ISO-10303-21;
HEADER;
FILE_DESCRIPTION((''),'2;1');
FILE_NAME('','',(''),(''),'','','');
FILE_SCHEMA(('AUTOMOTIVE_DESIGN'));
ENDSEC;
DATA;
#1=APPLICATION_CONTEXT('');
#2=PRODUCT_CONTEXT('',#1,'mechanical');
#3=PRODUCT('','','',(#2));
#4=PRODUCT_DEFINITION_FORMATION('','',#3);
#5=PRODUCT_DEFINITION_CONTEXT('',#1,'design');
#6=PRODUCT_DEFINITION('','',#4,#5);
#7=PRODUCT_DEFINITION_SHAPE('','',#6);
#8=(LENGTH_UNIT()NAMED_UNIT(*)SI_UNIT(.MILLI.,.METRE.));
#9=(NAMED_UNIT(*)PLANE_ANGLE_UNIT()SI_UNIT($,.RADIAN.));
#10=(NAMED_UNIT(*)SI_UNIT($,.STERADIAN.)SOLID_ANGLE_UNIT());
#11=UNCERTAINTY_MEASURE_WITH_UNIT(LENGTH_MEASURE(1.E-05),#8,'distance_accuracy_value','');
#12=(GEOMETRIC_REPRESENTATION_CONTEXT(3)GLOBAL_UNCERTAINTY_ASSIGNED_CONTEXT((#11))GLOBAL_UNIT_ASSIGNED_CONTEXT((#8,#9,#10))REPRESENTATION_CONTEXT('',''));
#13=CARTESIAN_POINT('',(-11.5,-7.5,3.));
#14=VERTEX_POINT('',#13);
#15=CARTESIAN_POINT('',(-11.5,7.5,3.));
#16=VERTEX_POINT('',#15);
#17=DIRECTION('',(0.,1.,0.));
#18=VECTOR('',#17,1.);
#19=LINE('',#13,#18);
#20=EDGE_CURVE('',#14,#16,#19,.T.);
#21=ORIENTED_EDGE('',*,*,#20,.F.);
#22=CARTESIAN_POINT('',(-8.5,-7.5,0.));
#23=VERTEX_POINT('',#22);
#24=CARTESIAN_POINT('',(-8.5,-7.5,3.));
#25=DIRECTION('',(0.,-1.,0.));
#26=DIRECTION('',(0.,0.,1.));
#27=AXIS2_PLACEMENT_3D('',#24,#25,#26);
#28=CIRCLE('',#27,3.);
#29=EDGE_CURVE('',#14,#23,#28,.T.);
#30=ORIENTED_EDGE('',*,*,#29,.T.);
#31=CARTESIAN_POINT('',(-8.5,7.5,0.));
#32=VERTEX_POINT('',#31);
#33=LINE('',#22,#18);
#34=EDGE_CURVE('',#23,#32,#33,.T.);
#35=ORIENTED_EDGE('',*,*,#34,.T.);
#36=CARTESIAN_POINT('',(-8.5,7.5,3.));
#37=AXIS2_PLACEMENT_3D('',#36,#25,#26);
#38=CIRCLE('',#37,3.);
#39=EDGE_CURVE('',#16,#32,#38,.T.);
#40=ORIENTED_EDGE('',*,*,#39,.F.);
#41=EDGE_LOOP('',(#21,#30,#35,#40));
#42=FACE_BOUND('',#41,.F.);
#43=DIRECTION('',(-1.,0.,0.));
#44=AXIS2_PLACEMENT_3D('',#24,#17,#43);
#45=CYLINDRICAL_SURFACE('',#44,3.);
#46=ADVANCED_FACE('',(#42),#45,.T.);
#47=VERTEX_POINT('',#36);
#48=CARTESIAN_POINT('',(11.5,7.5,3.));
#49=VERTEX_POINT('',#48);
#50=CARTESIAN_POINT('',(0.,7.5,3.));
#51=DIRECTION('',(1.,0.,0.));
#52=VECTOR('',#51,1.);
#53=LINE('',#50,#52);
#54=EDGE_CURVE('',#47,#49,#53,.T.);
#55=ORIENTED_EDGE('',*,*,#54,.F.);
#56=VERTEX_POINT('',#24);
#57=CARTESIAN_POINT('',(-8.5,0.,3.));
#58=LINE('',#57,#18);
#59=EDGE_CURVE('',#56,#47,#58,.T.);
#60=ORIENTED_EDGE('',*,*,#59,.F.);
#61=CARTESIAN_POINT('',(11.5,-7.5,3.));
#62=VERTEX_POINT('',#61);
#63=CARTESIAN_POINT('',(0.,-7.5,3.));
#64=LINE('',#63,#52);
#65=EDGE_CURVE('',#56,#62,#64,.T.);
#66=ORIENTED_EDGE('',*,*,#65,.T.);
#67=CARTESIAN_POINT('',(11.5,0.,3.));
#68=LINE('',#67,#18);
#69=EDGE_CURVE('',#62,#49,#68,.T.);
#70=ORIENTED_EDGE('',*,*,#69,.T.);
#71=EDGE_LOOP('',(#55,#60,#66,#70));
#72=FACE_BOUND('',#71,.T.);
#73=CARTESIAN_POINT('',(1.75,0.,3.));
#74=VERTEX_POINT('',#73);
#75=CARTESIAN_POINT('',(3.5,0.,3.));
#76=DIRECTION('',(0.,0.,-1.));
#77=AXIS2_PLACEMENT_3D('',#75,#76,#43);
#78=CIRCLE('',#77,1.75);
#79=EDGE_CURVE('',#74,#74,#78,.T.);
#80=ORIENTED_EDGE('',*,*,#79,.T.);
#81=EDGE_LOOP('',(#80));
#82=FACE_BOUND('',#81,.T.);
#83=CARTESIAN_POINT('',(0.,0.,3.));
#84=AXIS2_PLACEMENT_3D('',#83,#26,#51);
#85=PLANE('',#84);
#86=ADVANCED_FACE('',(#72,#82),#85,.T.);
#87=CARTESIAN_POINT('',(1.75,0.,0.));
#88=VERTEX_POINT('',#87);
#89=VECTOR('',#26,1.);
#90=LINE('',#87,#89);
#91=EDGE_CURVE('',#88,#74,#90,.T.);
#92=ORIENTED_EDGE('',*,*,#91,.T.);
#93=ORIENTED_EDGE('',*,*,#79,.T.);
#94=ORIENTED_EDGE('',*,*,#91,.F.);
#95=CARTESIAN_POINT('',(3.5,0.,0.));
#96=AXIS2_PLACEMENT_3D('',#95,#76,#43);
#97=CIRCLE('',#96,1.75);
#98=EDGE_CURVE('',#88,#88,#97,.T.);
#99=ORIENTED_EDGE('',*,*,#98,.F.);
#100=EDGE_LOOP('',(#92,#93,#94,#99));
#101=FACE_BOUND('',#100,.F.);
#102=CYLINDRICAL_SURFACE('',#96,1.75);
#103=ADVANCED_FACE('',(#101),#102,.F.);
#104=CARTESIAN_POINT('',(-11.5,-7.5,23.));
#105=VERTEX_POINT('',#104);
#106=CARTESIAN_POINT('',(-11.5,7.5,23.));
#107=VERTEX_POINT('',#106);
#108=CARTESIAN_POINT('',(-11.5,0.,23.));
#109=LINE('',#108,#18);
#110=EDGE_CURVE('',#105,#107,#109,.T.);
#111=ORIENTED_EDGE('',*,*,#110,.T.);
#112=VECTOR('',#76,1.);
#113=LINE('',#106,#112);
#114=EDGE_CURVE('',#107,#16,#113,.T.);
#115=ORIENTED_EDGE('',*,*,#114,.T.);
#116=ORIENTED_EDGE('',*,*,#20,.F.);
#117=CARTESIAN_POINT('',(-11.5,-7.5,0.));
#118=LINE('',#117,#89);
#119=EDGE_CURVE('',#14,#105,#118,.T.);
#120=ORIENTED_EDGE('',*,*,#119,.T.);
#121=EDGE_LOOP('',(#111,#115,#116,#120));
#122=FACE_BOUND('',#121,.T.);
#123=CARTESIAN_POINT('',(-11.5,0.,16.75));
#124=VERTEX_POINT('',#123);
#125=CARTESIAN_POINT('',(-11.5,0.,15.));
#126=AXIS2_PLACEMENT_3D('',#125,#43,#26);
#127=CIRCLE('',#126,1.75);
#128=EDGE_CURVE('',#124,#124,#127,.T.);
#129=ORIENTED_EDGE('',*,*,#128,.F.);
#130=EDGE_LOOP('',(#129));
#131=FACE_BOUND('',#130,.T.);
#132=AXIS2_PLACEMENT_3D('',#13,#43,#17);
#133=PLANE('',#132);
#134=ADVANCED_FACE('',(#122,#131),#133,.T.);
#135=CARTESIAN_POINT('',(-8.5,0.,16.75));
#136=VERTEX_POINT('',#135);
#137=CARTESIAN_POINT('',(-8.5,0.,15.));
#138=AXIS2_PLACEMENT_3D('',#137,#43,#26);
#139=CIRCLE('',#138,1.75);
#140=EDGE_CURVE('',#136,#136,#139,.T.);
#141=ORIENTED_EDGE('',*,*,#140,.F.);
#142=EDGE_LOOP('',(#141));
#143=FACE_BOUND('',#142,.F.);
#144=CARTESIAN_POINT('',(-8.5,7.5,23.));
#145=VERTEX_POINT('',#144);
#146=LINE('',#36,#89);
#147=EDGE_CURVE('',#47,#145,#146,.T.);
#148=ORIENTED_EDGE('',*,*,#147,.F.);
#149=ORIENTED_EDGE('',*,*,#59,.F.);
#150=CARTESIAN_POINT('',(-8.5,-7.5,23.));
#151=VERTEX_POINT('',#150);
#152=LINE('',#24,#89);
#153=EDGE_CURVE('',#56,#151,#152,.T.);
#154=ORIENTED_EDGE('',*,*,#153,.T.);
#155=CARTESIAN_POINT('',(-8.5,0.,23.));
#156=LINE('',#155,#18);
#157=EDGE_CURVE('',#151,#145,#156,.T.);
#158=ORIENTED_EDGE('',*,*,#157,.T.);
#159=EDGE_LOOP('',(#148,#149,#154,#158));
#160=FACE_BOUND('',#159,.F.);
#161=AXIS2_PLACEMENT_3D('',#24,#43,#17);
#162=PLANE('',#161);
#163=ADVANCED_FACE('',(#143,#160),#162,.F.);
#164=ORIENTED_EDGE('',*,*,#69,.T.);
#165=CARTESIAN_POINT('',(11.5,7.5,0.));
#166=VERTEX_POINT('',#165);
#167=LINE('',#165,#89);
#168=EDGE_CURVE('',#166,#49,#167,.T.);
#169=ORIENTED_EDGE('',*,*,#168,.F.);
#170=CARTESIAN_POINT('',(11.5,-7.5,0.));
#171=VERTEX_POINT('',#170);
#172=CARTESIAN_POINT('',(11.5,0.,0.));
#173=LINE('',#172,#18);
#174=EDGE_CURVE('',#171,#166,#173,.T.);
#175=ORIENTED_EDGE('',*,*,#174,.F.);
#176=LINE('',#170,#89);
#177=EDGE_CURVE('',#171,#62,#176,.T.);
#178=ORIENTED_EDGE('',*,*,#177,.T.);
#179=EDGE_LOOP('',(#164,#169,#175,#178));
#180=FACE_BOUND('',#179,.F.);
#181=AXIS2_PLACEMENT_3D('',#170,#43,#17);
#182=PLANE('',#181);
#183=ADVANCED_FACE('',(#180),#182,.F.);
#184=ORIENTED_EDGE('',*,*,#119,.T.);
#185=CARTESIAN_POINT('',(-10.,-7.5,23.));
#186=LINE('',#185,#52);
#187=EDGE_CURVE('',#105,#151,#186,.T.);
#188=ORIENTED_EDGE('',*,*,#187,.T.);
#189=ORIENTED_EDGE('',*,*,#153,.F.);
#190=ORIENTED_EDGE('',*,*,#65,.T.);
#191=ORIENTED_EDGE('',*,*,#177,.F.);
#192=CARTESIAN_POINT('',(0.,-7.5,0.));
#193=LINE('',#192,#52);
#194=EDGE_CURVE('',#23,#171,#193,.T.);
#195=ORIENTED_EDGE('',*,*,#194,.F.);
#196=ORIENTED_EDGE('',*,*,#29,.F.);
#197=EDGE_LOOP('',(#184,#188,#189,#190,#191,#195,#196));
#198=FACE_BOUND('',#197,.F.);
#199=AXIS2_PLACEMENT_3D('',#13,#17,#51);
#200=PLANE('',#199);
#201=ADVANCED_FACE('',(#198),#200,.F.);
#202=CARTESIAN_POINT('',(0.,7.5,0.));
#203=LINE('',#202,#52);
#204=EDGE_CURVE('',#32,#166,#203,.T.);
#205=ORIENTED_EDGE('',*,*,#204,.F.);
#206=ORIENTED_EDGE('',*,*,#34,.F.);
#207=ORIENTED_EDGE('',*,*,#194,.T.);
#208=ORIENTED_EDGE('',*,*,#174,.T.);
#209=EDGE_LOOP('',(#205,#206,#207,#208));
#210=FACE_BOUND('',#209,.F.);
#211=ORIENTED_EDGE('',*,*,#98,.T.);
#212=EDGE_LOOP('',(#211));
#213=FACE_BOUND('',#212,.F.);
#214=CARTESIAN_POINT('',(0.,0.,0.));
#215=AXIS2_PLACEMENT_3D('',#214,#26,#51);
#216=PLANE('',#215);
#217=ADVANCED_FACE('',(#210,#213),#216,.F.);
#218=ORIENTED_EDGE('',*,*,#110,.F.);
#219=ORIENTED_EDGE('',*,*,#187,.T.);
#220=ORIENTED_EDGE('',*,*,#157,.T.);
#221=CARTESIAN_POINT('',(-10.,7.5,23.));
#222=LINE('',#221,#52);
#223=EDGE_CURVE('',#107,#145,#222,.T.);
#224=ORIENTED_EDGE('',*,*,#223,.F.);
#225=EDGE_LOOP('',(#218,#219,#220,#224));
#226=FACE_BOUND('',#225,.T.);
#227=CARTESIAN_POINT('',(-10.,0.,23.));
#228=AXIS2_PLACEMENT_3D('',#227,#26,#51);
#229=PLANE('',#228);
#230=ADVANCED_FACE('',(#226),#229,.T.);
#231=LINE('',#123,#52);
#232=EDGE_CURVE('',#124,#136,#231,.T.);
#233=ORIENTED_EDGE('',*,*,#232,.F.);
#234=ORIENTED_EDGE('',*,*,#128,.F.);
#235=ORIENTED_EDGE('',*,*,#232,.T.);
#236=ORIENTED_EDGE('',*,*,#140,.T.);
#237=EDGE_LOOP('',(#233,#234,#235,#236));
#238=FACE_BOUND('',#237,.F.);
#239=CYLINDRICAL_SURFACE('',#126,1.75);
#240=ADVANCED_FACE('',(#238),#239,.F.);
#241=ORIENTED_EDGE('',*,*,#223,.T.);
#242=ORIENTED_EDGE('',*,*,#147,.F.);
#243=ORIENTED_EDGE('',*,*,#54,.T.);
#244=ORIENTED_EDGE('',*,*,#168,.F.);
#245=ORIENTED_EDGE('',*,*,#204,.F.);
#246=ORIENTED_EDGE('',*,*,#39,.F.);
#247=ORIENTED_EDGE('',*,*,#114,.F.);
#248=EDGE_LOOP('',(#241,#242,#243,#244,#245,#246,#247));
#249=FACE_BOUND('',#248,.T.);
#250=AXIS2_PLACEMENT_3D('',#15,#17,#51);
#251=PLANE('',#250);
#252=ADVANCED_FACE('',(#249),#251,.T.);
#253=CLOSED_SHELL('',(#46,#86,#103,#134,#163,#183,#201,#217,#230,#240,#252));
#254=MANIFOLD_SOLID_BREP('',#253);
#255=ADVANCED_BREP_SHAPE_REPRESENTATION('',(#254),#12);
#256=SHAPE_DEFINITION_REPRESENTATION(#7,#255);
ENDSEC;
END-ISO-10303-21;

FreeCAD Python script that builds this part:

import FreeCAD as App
import Part
import Sketcher
Q = App.Units.Quantity


def edges_at(feature, points):
    """Names of the edges that pass closest to the given points."""
    edges = feature.Shape.Edges
    near = lambda p: min(range(len(edges)), key=lambda i: edges[i].distToShape(Part.Vertex(*p))[0])
    return sorted({f"Edge{near(p) + 1}" for p in points})


def add_polygon(sketch, points):
    """Adds a closed chain of lines whose ends are joined by coincident constraints."""
    first, n = sketch.GeometryCount, len(points)
    for a, b in zip(points, points[1:] + points[:1]):
        sketch.addGeometry(Part.LineSegment(App.Vector(*a, 0), App.Vector(*b, 0)), False)
    for i in range(n):
        sketch.addConstraint(Sketcher.Constraint("Coincident", first + i, 2, first + (i + 1) % n, 1))

doc = App.newDocument("Part")
body = doc.addObject("PartDesign::Body", "Body")

sketch1 = body.newObject("Sketcher::SketchObject", "Sketch")
sketch1.AttachmentSupport = (doc.getObject("XY_Plane"), [""])
sketch1.MapMode = "FlatFace"
add_polygon(sketch1, [(-12, 8), (-12, -8), (12, -8), (12, 8)])
sketch1.addConstraint([
    Sketcher.Constraint("Vertical", 0),
    Sketcher.Constraint("Horizontal", 1),
    Sketcher.Constraint("Vertical", 2),
    Sketcher.Constraint("Horizontal", 3),
    Sketcher.Constraint("Symmetric", 0, 2, 2, 2, -1, 1),
    Sketcher.Constraint("DistanceX", 1, 1, 1, 2, Q("23 mm")),
    Sketcher.Constraint("DistanceY", 0, 2, 0, 1, Q("15 mm")),
])
pad1 = body.newObject("PartDesign::Pad", "Pad")
pad1.Profile = sketch1
pad1.Length = 3

sketch2 = body.newObject("Sketcher::SketchObject", "Sketch001")
sketch2.AttachmentSupport = (doc.getObject("XY_Plane"), [""])
sketch2.MapMode = "FlatFace"
sketch2.AttachmentOffset = App.Placement(App.Vector(0, 0, 3), App.Rotation())
add_polygon(sketch2, [(-11.5, 7.5), (-11.5, -7.5), (-8.5, -7.5), (-8.5, 7.5)])
sketch2.addConstraint([
    Sketcher.Constraint("Vertical", 0),
    Sketcher.Constraint("Horizontal", 1),
    Sketcher.Constraint("Vertical", 2),
    Sketcher.Constraint("Horizontal", 3),
    Sketcher.Constraint("DistanceX", 1, 1, 1, 2, Q("3 mm")),
    Sketcher.Constraint("DistanceY", 0, 2, 0, 1, Q("15 mm")),
    Sketcher.Constraint("DistanceX", 0, 2, -1, 1, Q("11.5 mm")),
    Sketcher.Constraint("DistanceY", 0, 2, -1, 1, Q("7.5 mm")),
])
pad2 = body.newObject("PartDesign::Pad", "Pad001")
pad2.Profile = sketch2
pad2.Length = 20

sketch3 = body.newObject("Sketcher::SketchObject", "Sketch002")
sketch3.AttachmentSupport = (doc.getObject("XY_Plane"), [""])
sketch3.MapMode = "FlatFace"
sketch3.addGeometry(Part.Circle(App.Vector(3.5, 0, 0), App.Vector(0, 0, 1), 1.8), False)
sketch3.addConstraint([
    Sketcher.Constraint("PointOnObject", 0, 3, -1),
    Sketcher.Constraint("Diameter", 0, Q("3.5 mm")),
    Sketcher.Constraint("DistanceX", -1, 1, 0, 3, Q("3.5 mm")),
])
pocket1 = body.newObject("PartDesign::Pocket", "Pocket")
pocket1.Profile = sketch3
pocket1.Type = "ThroughAll"
pocket1.Reversed = True

sketch4 = body.newObject("Sketcher::SketchObject", "Sketch003")
sketch4.AttachmentSupport = (doc.getObject("YZ_Plane"), [""])
sketch4.MapMode = "FlatFace"
sketch4.AttachmentOffset = App.Placement(App.Vector(0, 0, -11.5), App.Rotation())
sketch4.addGeometry(Part.Circle(App.Vector(0, 15, 0), App.Vector(0, 0, 1), 1.8), False)
sketch4.addConstraint([
    Sketcher.Constraint("PointOnObject", 0, 3, -2),
    Sketcher.Constraint("Diameter", 0, Q("3.5 mm")),
    Sketcher.Constraint("DistanceY", -1, 1, 0, 3, Q("15 mm")),
])
pocket2 = body.newObject("PartDesign::Pocket", "Pocket001")
pocket2.Profile = sketch4
pocket2.Type = "ThroughAll"
pocket2.Reversed = True
doc.recompute()

fillet = body.newObject("PartDesign::Fillet", "Fillet")
fillet.Base = (pocket2, edges_at(pocket2, [(-11.5, 0, 0)]))
fillet.Radius = 3

doc.recompute()
